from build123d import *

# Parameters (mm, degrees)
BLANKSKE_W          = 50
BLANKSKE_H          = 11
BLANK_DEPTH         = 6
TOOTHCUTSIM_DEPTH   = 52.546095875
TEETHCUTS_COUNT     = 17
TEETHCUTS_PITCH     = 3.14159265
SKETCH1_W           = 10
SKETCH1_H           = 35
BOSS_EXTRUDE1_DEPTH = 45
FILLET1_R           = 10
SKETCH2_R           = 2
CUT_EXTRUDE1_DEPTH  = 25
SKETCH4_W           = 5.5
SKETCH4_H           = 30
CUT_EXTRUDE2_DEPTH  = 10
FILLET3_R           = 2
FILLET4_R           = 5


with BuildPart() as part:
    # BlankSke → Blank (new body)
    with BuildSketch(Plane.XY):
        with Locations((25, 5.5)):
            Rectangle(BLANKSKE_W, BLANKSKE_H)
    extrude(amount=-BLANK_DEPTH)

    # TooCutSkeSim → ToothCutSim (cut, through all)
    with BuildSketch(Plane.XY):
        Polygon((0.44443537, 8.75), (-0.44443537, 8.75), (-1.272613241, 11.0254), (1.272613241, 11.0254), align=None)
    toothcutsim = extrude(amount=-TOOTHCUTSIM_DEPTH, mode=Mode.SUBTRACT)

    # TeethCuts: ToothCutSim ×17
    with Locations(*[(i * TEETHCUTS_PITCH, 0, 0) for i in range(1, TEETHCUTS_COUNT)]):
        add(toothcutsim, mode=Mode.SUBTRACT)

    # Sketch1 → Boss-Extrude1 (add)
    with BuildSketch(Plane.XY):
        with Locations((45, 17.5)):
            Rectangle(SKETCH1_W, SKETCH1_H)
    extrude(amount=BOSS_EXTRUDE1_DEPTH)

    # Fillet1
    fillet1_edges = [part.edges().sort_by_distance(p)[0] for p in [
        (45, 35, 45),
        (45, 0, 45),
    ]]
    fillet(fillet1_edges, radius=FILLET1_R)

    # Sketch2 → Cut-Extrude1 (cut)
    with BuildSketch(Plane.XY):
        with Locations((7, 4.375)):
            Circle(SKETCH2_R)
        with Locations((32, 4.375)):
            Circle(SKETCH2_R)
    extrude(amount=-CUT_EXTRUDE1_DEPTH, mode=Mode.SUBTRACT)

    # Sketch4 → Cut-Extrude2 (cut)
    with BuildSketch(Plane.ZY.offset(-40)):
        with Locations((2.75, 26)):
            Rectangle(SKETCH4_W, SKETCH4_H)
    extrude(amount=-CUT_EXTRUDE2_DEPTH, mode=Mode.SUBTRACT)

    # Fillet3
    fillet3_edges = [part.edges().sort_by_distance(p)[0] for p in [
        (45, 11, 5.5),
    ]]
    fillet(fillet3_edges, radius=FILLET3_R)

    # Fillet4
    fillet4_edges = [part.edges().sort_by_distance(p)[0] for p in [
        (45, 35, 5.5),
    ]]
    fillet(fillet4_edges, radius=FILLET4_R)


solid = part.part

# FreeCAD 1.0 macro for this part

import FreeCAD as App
import Part
import Sketcher
Q = App.Units.Quantity


def edges_at(feature, points):
    """Names of the edges that pass closest to the given points."""
    edges = feature.Shape.Edges
    near = lambda p: min(range(len(edges)), key=lambda i: edges[i].distToShape(Part.Vertex(*p))[0])
    return sorted({f"Edge{near(p) + 1}" for p in points})


def add_polygon(sketch, points):
    """Adds a closed chain of lines whose ends are joined by coincident constraints."""
    first, n = sketch.GeometryCount, len(points)
    for a, b in zip(points, points[1:] + points[:1]):
        sketch.addGeometry(Part.LineSegment(App.Vector(*a, 0), App.Vector(*b, 0)), False)
    for i in range(n):
        sketch.addConstraint(Sketcher.Constraint("Coincident", first + i, 2, first + (i + 1) % n, 1))

doc = App.newDocument("Part")
params = doc.addObject("Spreadsheet::Sheet", "Params")
for row, (alias, value) in enumerate([
    ("sketch1_width", "50 mm"),
    ("sketch1_height", "11 mm"),
    ("pad1_length", "6 mm"),
    ("linearpattern_pitch", "3.141593 mm"),
    ("sketch3_width", "10 mm"),
    ("sketch3_height", "35 mm"),
    ("pad2_length", "45 mm"),
    ("fillet_radius", "10 mm"),
    ("sketch4_diameter", "4 mm"),
    ("pocket2_length", "25 mm"),
    ("sketch5_width", "30 mm"),
    ("sketch5_height", "5.5 mm"),
    ("pocket3_length", "10 mm"),
    ("fillet2_radius", "2 mm"),
    ("fillet3_radius", "5 mm"),
], start=1):
    params.set(f"A{row}", alias)
    params.set(f"B{row}", "=" + value)
    params.setAlias(f"B{row}", alias)

body = doc.addObject("PartDesign::Body", "Body")

# Sketch on XY plane
sketch1 = body.newObject("Sketcher::SketchObject", "Sketch")
sketch1.AttachmentSupport = (doc.getObject("XY_Plane"), [""])
sketch1.MapMode = "FlatFace"
add_polygon(sketch1, [(0, 11), (0, 0), (50, 0), (50, 11)])  # lines 0-3
sketch1.addConstraint(Sketcher.Constraint("Vertical", 0))
sketch1.addConstraint(Sketcher.Constraint("Horizontal", 1))
sketch1.addConstraint(Sketcher.Constraint("Vertical", 2))
sketch1.addConstraint(Sketcher.Constraint("Horizontal", 3))
sketch1.addConstraint(Sketcher.Constraint("Coincident", 0, 2, -1, 1))
sketch1.addConstraint(Sketcher.Constraint("DistanceX", 1, 1, 1, 2, 50.0))
sketch1.addConstraint(Sketcher.Constraint("DistanceY", 0, 2, 0, 1, 11.0))
sketch1.setExpression("Constraints[9]", "Params.sketch1_width")
sketch1.setExpression("Constraints[10]", "Params.sketch1_height")
pad1 = body.newObject("PartDesign::Pad", "Pad")
pad1.Profile = sketch1
pad1.setExpression("Length", "Params.pad1_length")
pad1.Reversed = True

# Sketch on XY plane
sketch2 = body.newObject("Sketcher::SketchObject", "Sketch001")
sketch2.AttachmentSupport = (doc.getObject("XY_Plane"), [""])
sketch2.MapMode = "FlatFace"
add_polygon(sketch2, [(-0.4, 8.8), (0.4, 8.8), (1.3, 11), (-1.3, 11)])  # lines 0-3
sketch2.addConstraint(Sketcher.Constraint("Horizontal", 0))
sketch2.addConstraint(Sketcher.Constraint("Horizontal", 2))
sketch2.addConstraint(Sketcher.Constraint("Equal", 1, 3))
sketch2.addConstraint(Sketcher.Constraint("Angle", 1, Q("70 deg")))
sketch2.addConstraint(Sketcher.Constraint("DistanceY", -1, 1, 0, 2, 8.75))
sketch2.addConstraint(Sketcher.Constraint("DistanceX", 0, 1, 0, 2, 0.888871))
sketch2.addConstraint(Sketcher.Constraint("DistanceY", -1, 1, 1, 2, 11.0254))
sketch2.addConstraint(Sketcher.Constraint("DistanceX", -1, 1, 0, 2, 0.444435))
pocket1 = body.newObject("PartDesign::Pocket", "Pocket")
pocket1.Profile = sketch2
pocket1.Type = "ThroughAll"
doc.recompute()

linearpattern = body.newObject("PartDesign::LinearPattern", "LinearPattern")
linearpattern.Originals = [pocket1]
linearpattern.Direction = (doc.getObject("X_Axis"), [""])
linearpattern.Mode = "offset"
linearpattern.setExpression("Offset", "Params.linearpattern_pitch")
linearpattern.Occurrences = 17
body.Tip = linearpattern

# Sketch on XY plane
sketch3 = body.newObject("Sketcher::SketchObject", "Sketch002")
sketch3.AttachmentSupport = (doc.getObject("XY_Plane"), [""])
sketch3.MapMode = "FlatFace"
add_polygon(sketch3, [(40, 35), (40, 0), (50, 0), (50, 35)])  # lines 0-3
sketch3.addConstraint(Sketcher.Constraint("Vertical", 0))
sketch3.addConstraint(Sketcher.Constraint("Horizontal", 1))
sketch3.addConstraint(Sketcher.Constraint("Vertical", 2))
sketch3.addConstraint(Sketcher.Constraint("Horizontal", 3))
sketch3.addConstraint(Sketcher.Constraint("PointOnObject", 0, 2, -1))
sketch3.addConstraint(Sketcher.Constraint("DistanceX", 1, 1, 1, 2, 10.0))
sketch3.addConstraint(Sketcher.Constraint("DistanceY", 0, 2, 0, 1, 35.0))
sketch3.addConstraint(Sketcher.Constraint("DistanceX", -1, 1, 0, 2, 40.0))
sketch3.setExpression("Constraints[9]", "Params.sketch3_width")
sketch3.setExpression("Constraints[10]", "Params.sketch3_height")
pad2 = body.newObject("PartDesign::Pad", "Pad001")
pad2.Profile = sketch3
pad2.setExpression("Length", "Params.pad2_length")
doc.recompute()

fillet = body.newObject("PartDesign::Fillet", "Fillet")
fillet.Base = (pad2, edges_at(pad2, [(45, 35, 45), (45, 0, 45)]))
fillet.setExpression("Radius", "Params.fillet_radius")

# Sketch on XY plane
sketch4 = body.newObject("Sketcher::SketchObject", "Sketch003")
sketch4.AttachmentSupport = (doc.getObject("XY_Plane"), [""])
sketch4.MapMode = "FlatFace"
sketch4.addGeometry(Part.Circle(App.Vector(7, 4.4, 0), App.Vector(0, 0, 1), 2), False)
sketch4.addGeometry(Part.Circle(App.Vector(32, 4.4, 0), App.Vector(0, 0, 1), 2), False)
sketch4.addConstraint(Sketcher.Constraint("Equal", 0, 1))
sketch4.addConstraint(Sketcher.Constraint("Horizontal", 0, 3, 1, 3))
sketch4.addConstraint(Sketcher.Constraint("Diameter", 0, 4.0))
sketch4.addConstraint(Sketcher.Constraint("DistanceX", -1, 1, 0, 3, 7.0))
sketch4.addConstraint(Sketcher.Constraint("DistanceX", -1, 1, 1, 3, 32.0))
sketch4.addConstraint(Sketcher.Constraint("DistanceY", -1, 1, 0, 3, 4.375))
sketch4.setExpression("Constraints[2]", "Params.sketch4_diameter")
pocket2 = body.newObject("PartDesign::Pocket", "Pocket001")
pocket2.Profile = sketch4
pocket2.setExpression("Length", "Params.pocket2_length")

# Sketch on YZ plane
sketch5 = body.newObject("Sketcher::SketchObject", "Sketch004")
sketch5.AttachmentSupport = (doc.getObject("YZ_Plane"), [""])
sketch5.MapMode = "FlatFace"
sketch5.AttachmentOffset = App.Placement(App.Vector(0, 0, 40), App.Rotation())
add_polygon(sketch5, [(41, 0), (11, 0), (11, 6), (41, 6)])  # lines 0-3
sketch5.addConstraint(Sketcher.Constraint("Horizontal", 0))
sketch5.addConstraint(Sketcher.Constraint("Vertical", 1))
sketch5.addConstraint(Sketcher.Constraint("Horizontal", 2))
sketch5.addConstraint(Sketcher.Constraint("Vertical", 3))
sketch5.addConstraint(Sketcher.Constraint("PointOnObject", 0, 2, -1))
sketch5.addConstraint(Sketcher.Constraint("DistanceX", 0, 2, 0, 1, 30.0))
sketch5.addConstraint(Sketcher.Constraint("DistanceY", 1, 1, 1, 2, 5.5))
sketch5.addConstraint(Sketcher.Constraint("DistanceX", -1, 1, 0, 2, 11.0))
sketch5.setExpression("Constraints[9]", "Params.sketch5_width")
sketch5.setExpression("Constraints[10]", "Params.sketch5_height")
pocket3 = body.newObject("PartDesign::Pocket", "Pocket002")
pocket3.Profile = sketch5
pocket3.setExpression("Length", "Params.pocket3_length")
pocket3.Reversed = True
doc.recompute()

fillet2 = body.newObject("PartDesign::Fillet", "Fillet001")
fillet2.Base = (pocket3, edges_at(pocket3, [(45, 11, 5.5)]))
fillet2.setExpression("Radius", "Params.fillet2_radius")
doc.recompute()

fillet3 = body.newObject("PartDesign::Fillet", "Fillet002")
fillet3.Base = (fillet2, edges_at(fillet2, [(45, 35, 5.5)]))
fillet3.setExpression("Radius", "Params.fillet3_radius")

doc.recompute()
